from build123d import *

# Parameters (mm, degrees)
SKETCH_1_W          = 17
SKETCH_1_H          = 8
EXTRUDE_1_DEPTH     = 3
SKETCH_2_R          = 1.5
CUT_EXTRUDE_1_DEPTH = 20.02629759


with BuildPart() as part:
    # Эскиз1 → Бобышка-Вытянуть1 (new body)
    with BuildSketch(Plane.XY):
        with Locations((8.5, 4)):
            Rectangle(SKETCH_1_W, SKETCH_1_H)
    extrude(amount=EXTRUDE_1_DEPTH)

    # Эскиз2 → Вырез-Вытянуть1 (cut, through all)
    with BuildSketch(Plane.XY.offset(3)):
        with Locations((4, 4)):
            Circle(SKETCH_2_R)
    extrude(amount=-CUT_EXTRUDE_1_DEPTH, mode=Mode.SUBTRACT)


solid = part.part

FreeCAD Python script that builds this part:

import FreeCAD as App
import Part
import Sketcher

V = App.Vector


def add_polygon(sketch, points):
    """Adds a closed chain of lines whose ends are joined by coincident constraints."""
    first, n = sketch.GeometryCount, len(points)
    for a, b in zip(points, points[1:] + points[:1]):
        sketch.addGeometry(Part.LineSegment(App.Vector(*a, 0), App.Vector(*b, 0)), False)
    for i in range(n):
        sketch.addConstraint(Sketcher.Constraint("Coincident", first + i, 2, first + (i + 1) % n, 1))

doc = App.newDocument("Part")
body = doc.addObject("PartDesign::Body", "Body")

# Sketch on XY plane
sketch1 = body.newObject("Sketcher::SketchObject", "Sketch")
sketch1.AttachmentSupport = (doc.getObject("XY_Plane"), [""])
sketch1.MapMode = "FlatFace"
add_polygon(sketch1, [(0, 8), (0, 0), (17, 0), (17, 8)])  # lines 0-3
sketch1.addConstraint([
    Sketcher.Constraint("Vertical", 0),
    Sketcher.Constraint("Horizontal", 1),
    Sketcher.Constraint("Vertical", 2),
    Sketcher.Constraint("Horizontal", 3),
    Sketcher.Constraint("Coincident", 0, 2, -1, 1),
    Sketcher.Constraint("DistanceX", 1, 1, 1, 2, 17.0),
    Sketcher.Constraint("DistanceY", 0, 2, 0, 1, 8.0),
])
pad1 = body.newObject("PartDesign::Pad", "Pad")
pad1.Profile = sketch1
pad1.Length = 3

# Sketch on XY plane
sketch2 = body.newObject("Sketcher::SketchObject", "Sketch001")
sketch2.AttachmentSupport = (doc.getObject("XY_Plane"), [""])
sketch2.MapMode = "FlatFace"
sketch2.AttachmentOffset = App.Placement(V(0, 0, 3), App.Rotation())
sketch2.addGeometry(Part.Circle(V(4, 4, 0), V(0, 0, 1), 1.5), False)
sketch2.addConstraint([
    Sketcher.Constraint("Diameter", 0, 3.0),
    Sketcher.Constraint("DistanceX", -1, 1, 0, 3, 4.0),
    Sketcher.Constraint("DistanceY", -1, 1, 0, 3, 4.0),
])
pocket1 = body.newObject("PartDesign::Pocket", "Pocket")
pocket1.Profile = sketch2
pocket1.Type = "ThroughAll"

doc.recompute()
